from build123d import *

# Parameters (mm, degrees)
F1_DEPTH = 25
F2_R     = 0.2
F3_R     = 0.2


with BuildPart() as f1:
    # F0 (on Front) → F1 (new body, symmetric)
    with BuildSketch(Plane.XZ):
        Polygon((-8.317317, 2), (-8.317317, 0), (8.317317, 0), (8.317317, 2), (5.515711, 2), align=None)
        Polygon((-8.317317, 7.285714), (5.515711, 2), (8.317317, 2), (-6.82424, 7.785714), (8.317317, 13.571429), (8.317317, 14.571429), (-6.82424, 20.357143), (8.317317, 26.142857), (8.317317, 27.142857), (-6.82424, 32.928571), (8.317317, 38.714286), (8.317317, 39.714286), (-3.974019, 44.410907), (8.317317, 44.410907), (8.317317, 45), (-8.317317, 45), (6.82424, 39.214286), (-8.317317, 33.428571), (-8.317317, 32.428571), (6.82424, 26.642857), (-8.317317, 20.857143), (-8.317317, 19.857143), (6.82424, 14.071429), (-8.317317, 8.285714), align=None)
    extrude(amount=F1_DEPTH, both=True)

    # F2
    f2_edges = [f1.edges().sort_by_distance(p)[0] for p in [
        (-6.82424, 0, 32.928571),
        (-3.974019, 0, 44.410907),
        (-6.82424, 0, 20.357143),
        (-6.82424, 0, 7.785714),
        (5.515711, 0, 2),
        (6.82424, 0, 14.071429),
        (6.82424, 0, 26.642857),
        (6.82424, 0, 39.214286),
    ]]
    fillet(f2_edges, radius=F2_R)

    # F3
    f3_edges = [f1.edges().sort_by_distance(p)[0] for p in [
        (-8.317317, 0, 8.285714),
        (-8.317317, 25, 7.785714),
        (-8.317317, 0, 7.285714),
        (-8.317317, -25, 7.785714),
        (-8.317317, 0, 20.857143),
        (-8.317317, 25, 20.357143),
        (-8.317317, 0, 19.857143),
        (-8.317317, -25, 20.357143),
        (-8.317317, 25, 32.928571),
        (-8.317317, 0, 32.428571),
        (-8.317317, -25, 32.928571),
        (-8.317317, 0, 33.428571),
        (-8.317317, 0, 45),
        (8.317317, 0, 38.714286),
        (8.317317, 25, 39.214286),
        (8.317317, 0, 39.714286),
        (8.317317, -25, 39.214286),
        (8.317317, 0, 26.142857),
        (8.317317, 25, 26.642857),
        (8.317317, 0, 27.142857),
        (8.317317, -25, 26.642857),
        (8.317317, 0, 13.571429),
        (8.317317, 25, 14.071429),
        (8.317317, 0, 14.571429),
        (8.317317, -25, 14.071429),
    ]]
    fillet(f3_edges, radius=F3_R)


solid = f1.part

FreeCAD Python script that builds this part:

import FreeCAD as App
import Part
import Sketcher

V = App.Vector
Q = App.Units.Quantity


def edges_at(feature, points):
    """Names of the edges that pass closest to the given points."""
    edges = feature.Shape.Edges
    near = lambda p: min(range(len(edges)), key=lambda i: edges[i].distToShape(Part.Vertex(*p))[0])
    return sorted({f"Edge{near(p) + 1}" for p in points})

doc = App.newDocument("Part")
body = doc.addObject("PartDesign::Body", "Body")

# Sketch on XZ plane
sketch1 = body.newObject("Sketcher::SketchObject", "Sketch")
sketch1.AttachmentSupport = (doc.getObject("XZ_Plane"), [""])
sketch1.MapMode = "FlatFace"
sketch1.addGeometry([
    Part.LineSegment(V(-8.3, 2, 0), V(-8.3, 0, 0)),  # 0
    Part.LineSegment(V(-8.3, 0, 0), V(8.3, 0, 0)),  # 1
    Part.LineSegment(V(8.3, 0, 0), V(8.3, 2, 0)),  # 2
    Part.LineSegment(V(8.3, 2, 0), V(-6.8, 7.8, 0)),  # 3
    Part.LineSegment(V(-6.8, 7.8, 0), V(8.3, 13.6, 0)),  # 4
    Part.LineSegment(V(8.3, 13.6, 0), V(8.3, 14.6, 0)),  # 5
    Part.LineSegment(V(8.3, 14.6, 0), V(-6.8, 20.4, 0)),  # 6
    Part.LineSegment(V(-6.8, 20.4, 0), V(8.3, 26.1, 0)),  # 7
    Part.LineSegment(V(8.3, 26.1, 0), V(8.3, 27.1, 0)),  # 8
    Part.LineSegment(V(8.3, 27.1, 0), V(-6.8, 32.9, 0)),  # 9
    Part.LineSegment(V(-6.8, 32.9, 0), V(8.3, 38.7, 0)),  # 10
    Part.LineSegment(V(8.3, 38.7, 0), V(8.3, 39.7, 0)),  # 11
    Part.LineSegment(V(8.3, 39.7, 0), V(-4, 44.4, 0)),  # 12
    Part.LineSegment(V(-4, 44.4, 0), V(8.3, 44.4, 0)),  # 13
    Part.LineSegment(V(8.3, 44.4, 0), V(8.3, 45, 0)),  # 14
    Part.LineSegment(V(8.3, 45, 0), V(-8.3, 45, 0)),  # 15
    Part.LineSegment(V(-8.3, 45, 0), V(6.8, 39.2, 0)),  # 16
    Part.LineSegment(V(6.8, 39.2, 0), V(-8.3, 33.4, 0)),  # 17
    Part.LineSegment(V(-8.3, 33.4, 0), V(-8.3, 32.4, 0)),  # 18
    Part.LineSegment(V(-8.3, 32.4, 0), V(6.8, 26.6, 0)),  # 19
    Part.LineSegment(V(6.8, 26.6, 0), V(-8.3, 20.9, 0)),  # 20
    Part.LineSegment(V(-8.3, 20.9, 0), V(-8.3, 19.9, 0)),  # 21
    Part.LineSegment(V(-8.3, 19.9, 0), V(6.8, 14.1, 0)),  # 22
    Part.LineSegment(V(6.8, 14.1, 0), V(-8.3, 8.3, 0)),  # 23
    Part.LineSegment(V(-8.3, 8.3, 0), V(-8.3, 7.3, 0)),  # 24
    Part.LineSegment(V(-8.3, 7.3, 0), V(5.5, 2, 0)),  # 25
    Part.LineSegment(V(5.5, 2, 0), V(-8.3, 2, 0)),  # 26
], False)
sketch1.addConstraint([
    Sketcher.Constraint("Coincident", 0, 2, 1, 1),
    Sketcher.Constraint("Coincident", 1, 2, 2, 1),
    Sketcher.Constraint("Coincident", 2, 2, 3, 1),
    Sketcher.Constraint("Coincident", 3, 2, 4, 1),
    Sketcher.Constraint("Coincident", 4, 2, 5, 1),
    Sketcher.Constraint("Coincident", 5, 2, 6, 1),
    Sketcher.Constraint("Coincident", 6, 2, 7, 1),
    Sketcher.Constraint("Coincident", 7, 2, 8, 1),
    Sketcher.Constraint("Coincident", 8, 2, 9, 1),
    Sketcher.Constraint("Coincident", 9, 2, 10, 1),
    Sketcher.Constraint("Coincident", 10, 2, 11, 1),
    Sketcher.Constraint("Coincident", 11, 2, 12, 1),
    Sketcher.Constraint("Coincident", 12, 2, 13, 1),
    Sketcher.Constraint("Coincident", 13, 2, 14, 1),
    Sketcher.Constraint("Coincident", 14, 2, 15, 1),
    Sketcher.Constraint("Coincident", 15, 2, 16, 1),
    Sketcher.Constraint("Coincident", 16, 2, 17, 1),
    Sketcher.Constraint("Coincident", 17, 2, 18, 1),
    Sketcher.Constraint("Coincident", 18, 2, 19, 1),
    Sketcher.Constraint("Coincident", 19, 2, 20, 1),
    Sketcher.Constraint("Coincident", 20, 2, 21, 1),
    Sketcher.Constraint("Coincident", 21, 2, 22, 1),
    Sketcher.Constraint("Coincident", 22, 2, 23, 1),
    Sketcher.Constraint("Coincident", 23, 2, 24, 1),
    Sketcher.Constraint("Coincident", 24, 2, 25, 1),
    Sketcher.Constraint("Coincident", 25, 2, 26, 1),
    Sketcher.Constraint("Coincident", 26, 2, 0, 1),
    Sketcher.Constraint("Vertical", 0),
    Sketcher.Constraint("Horizontal", 1),
    Sketcher.Constraint("Vertical", 2),
    Sketcher.Constraint("Vertical", 5),
    Sketcher.Constraint("Vertical", 8),
    Sketcher.Constraint("Vertical", 11),
    Sketcher.Constraint("Horizontal", 13),
    Sketcher.Constraint("Vertical", 14),
    Sketcher.Constraint("Horizontal", 15),
    Sketcher.Constraint("Vertical", 18),
    Sketcher.Constraint("Vertical", 21),
    Sketcher.Constraint("Vertical", 24),
    Sketcher.Constraint("Horizontal", 26),
    Sketcher.Constraint("Symmetric", 0, 2, 1, 2, -1, 1),
    Sketcher.Constraint("Parallel", 3, 6),
    Sketcher.Constraint("Parallel", 4, 7),
    Sketcher.Constraint("Parallel", 6, 9),
    Sketcher.Constraint("Parallel", 7, 10),
    Sketcher.Constraint("Parallel", 9, 12),
    Sketcher.Constraint("Parallel", 12, 16),
    Sketcher.Constraint("Parallel", 10, 17),
    Sketcher.Constraint("Parallel", 16, 19),
    Sketcher.Constraint("Parallel", 17, 20),
    Sketcher.Constraint("Parallel", 19, 22),
    Sketcher.Constraint("Parallel", 20, 23),
    Sketcher.Constraint("Parallel", 22, 25),
    Sketcher.Constraint("Horizontal", 2, 2, 25, 2),
    Sketcher.Constraint("Vertical", 2, 2, 4, 2),
    Sketcher.Constraint("Vertical", 3, 2, 6, 2),
    Sketcher.Constraint("Vertical", 5, 2, 7, 2),
    Sketcher.Constraint("Vertical", 6, 2, 9, 2),
    Sketcher.Constraint("Vertical", 8, 2, 10, 2),
    Sketcher.Constraint("Vertical", 11, 2, 13, 2),
    Sketcher.Constraint("Vertical", 0, 2, 15, 2),
    Sketcher.Constraint("Vertical", 15, 2, 17, 2),
    Sketcher.Constraint("Vertical", 16, 2, 19, 2),
    Sketcher.Constraint("Vertical", 18, 2, 20, 2),
    Sketcher.Constraint("Vertical", 19, 2, 22, 2),
    Sketcher.Constraint("Vertical", 21, 2, 23, 2),
    Sketcher.Constraint("Equal", 5, 8),
    Sketcher.Constraint("Equal", 8, 11),
    Sketcher.Constraint("Equal", 11, 18),
    Sketcher.Constraint("Equal", 18, 21),
    Sketcher.Constraint("Equal", 21, 24),
    Sketcher.Constraint("Equal", 3, 4),
    Sketcher.Constraint("Equal", 10, 16),
    Sketcher.Constraint("DistanceY", 0, 2, 0, 1, Q("2 mm")),
    Sketcher.Constraint("DistanceY", 5, 1, 5, 2, Q("1 mm")),
    Sketcher.Constraint("DistanceY", -1, 1, 14, 2, Q("45 mm")),
    Sketcher.Constraint("DistanceY", 10, 2, 16, 2, Q("0.5 mm")),
    Sketcher.Constraint("DistanceX", 1, 1, 1, 2, Q("16.634634 mm")),
    Sketcher.Constraint("DistanceX", 13, 1, 13, 2, Q("12.291336 mm")),
    Sketcher.Constraint("DistanceX", 26, 2, 26, 1, Q("13.833028 mm")),
])
pad1 = body.newObject("PartDesign::Pad", "Pad")
pad1.Profile = sketch1
pad1.Length = 50
pad1.Midplane = True
doc.recompute()

fillet = body.newObject("PartDesign::Fillet", "Fillet")
fillet.Base = (pad1, edges_at(pad1, [
    (-6.824, 0, 32.929),
    (-3.974, 0, 44.411),
    (-6.824, 0, 20.357),
    (-6.824, 0, 7.786),
    (5.516, 0, 2),
    (6.824, 0, 14.071),
    (6.824, 0, 26.643),
    (6.824, 0, 39.214),
]))
fillet.Radius = 0.2
doc.recompute()

fillet2 = body.newObject("PartDesign::Fillet", "Fillet001")
fillet2.Base = (fillet, edges_at(fillet, [
    (-8.317, 0, 8.286),
    (-8.317, 25, 7.786),
    (-8.317, 0, 7.286),
    (-8.317, -25, 7.786),
    (-8.317, 0, 20.857),
    (-8.317, 25, 20.357),
    (-8.317, 0, 19.857),
    (-8.317, -25, 20.357),
    (-8.317, 25, 32.929),
    (-8.317, 0, 32.429),
    (-8.317, -25, 32.929),
    (-8.317, 0, 33.429),
    (-8.317, 0, 45),
    (8.317, 0, 38.714),
    (8.317, 25, 39.214),
    (8.317, 0, 39.714),
    (8.317, -25, 39.214),
    (8.317, 0, 26.143),
    (8.317, 25, 26.643),
    (8.317, 0, 27.143),
    (8.317, -25, 26.643),
    (8.317, 0, 13.571),
    (8.317, 25, 14.071),
    (8.317, 0, 14.571),
    (8.317, -25, 14.071),
]))
fillet2.Radius = 0.2

doc.recompute()
